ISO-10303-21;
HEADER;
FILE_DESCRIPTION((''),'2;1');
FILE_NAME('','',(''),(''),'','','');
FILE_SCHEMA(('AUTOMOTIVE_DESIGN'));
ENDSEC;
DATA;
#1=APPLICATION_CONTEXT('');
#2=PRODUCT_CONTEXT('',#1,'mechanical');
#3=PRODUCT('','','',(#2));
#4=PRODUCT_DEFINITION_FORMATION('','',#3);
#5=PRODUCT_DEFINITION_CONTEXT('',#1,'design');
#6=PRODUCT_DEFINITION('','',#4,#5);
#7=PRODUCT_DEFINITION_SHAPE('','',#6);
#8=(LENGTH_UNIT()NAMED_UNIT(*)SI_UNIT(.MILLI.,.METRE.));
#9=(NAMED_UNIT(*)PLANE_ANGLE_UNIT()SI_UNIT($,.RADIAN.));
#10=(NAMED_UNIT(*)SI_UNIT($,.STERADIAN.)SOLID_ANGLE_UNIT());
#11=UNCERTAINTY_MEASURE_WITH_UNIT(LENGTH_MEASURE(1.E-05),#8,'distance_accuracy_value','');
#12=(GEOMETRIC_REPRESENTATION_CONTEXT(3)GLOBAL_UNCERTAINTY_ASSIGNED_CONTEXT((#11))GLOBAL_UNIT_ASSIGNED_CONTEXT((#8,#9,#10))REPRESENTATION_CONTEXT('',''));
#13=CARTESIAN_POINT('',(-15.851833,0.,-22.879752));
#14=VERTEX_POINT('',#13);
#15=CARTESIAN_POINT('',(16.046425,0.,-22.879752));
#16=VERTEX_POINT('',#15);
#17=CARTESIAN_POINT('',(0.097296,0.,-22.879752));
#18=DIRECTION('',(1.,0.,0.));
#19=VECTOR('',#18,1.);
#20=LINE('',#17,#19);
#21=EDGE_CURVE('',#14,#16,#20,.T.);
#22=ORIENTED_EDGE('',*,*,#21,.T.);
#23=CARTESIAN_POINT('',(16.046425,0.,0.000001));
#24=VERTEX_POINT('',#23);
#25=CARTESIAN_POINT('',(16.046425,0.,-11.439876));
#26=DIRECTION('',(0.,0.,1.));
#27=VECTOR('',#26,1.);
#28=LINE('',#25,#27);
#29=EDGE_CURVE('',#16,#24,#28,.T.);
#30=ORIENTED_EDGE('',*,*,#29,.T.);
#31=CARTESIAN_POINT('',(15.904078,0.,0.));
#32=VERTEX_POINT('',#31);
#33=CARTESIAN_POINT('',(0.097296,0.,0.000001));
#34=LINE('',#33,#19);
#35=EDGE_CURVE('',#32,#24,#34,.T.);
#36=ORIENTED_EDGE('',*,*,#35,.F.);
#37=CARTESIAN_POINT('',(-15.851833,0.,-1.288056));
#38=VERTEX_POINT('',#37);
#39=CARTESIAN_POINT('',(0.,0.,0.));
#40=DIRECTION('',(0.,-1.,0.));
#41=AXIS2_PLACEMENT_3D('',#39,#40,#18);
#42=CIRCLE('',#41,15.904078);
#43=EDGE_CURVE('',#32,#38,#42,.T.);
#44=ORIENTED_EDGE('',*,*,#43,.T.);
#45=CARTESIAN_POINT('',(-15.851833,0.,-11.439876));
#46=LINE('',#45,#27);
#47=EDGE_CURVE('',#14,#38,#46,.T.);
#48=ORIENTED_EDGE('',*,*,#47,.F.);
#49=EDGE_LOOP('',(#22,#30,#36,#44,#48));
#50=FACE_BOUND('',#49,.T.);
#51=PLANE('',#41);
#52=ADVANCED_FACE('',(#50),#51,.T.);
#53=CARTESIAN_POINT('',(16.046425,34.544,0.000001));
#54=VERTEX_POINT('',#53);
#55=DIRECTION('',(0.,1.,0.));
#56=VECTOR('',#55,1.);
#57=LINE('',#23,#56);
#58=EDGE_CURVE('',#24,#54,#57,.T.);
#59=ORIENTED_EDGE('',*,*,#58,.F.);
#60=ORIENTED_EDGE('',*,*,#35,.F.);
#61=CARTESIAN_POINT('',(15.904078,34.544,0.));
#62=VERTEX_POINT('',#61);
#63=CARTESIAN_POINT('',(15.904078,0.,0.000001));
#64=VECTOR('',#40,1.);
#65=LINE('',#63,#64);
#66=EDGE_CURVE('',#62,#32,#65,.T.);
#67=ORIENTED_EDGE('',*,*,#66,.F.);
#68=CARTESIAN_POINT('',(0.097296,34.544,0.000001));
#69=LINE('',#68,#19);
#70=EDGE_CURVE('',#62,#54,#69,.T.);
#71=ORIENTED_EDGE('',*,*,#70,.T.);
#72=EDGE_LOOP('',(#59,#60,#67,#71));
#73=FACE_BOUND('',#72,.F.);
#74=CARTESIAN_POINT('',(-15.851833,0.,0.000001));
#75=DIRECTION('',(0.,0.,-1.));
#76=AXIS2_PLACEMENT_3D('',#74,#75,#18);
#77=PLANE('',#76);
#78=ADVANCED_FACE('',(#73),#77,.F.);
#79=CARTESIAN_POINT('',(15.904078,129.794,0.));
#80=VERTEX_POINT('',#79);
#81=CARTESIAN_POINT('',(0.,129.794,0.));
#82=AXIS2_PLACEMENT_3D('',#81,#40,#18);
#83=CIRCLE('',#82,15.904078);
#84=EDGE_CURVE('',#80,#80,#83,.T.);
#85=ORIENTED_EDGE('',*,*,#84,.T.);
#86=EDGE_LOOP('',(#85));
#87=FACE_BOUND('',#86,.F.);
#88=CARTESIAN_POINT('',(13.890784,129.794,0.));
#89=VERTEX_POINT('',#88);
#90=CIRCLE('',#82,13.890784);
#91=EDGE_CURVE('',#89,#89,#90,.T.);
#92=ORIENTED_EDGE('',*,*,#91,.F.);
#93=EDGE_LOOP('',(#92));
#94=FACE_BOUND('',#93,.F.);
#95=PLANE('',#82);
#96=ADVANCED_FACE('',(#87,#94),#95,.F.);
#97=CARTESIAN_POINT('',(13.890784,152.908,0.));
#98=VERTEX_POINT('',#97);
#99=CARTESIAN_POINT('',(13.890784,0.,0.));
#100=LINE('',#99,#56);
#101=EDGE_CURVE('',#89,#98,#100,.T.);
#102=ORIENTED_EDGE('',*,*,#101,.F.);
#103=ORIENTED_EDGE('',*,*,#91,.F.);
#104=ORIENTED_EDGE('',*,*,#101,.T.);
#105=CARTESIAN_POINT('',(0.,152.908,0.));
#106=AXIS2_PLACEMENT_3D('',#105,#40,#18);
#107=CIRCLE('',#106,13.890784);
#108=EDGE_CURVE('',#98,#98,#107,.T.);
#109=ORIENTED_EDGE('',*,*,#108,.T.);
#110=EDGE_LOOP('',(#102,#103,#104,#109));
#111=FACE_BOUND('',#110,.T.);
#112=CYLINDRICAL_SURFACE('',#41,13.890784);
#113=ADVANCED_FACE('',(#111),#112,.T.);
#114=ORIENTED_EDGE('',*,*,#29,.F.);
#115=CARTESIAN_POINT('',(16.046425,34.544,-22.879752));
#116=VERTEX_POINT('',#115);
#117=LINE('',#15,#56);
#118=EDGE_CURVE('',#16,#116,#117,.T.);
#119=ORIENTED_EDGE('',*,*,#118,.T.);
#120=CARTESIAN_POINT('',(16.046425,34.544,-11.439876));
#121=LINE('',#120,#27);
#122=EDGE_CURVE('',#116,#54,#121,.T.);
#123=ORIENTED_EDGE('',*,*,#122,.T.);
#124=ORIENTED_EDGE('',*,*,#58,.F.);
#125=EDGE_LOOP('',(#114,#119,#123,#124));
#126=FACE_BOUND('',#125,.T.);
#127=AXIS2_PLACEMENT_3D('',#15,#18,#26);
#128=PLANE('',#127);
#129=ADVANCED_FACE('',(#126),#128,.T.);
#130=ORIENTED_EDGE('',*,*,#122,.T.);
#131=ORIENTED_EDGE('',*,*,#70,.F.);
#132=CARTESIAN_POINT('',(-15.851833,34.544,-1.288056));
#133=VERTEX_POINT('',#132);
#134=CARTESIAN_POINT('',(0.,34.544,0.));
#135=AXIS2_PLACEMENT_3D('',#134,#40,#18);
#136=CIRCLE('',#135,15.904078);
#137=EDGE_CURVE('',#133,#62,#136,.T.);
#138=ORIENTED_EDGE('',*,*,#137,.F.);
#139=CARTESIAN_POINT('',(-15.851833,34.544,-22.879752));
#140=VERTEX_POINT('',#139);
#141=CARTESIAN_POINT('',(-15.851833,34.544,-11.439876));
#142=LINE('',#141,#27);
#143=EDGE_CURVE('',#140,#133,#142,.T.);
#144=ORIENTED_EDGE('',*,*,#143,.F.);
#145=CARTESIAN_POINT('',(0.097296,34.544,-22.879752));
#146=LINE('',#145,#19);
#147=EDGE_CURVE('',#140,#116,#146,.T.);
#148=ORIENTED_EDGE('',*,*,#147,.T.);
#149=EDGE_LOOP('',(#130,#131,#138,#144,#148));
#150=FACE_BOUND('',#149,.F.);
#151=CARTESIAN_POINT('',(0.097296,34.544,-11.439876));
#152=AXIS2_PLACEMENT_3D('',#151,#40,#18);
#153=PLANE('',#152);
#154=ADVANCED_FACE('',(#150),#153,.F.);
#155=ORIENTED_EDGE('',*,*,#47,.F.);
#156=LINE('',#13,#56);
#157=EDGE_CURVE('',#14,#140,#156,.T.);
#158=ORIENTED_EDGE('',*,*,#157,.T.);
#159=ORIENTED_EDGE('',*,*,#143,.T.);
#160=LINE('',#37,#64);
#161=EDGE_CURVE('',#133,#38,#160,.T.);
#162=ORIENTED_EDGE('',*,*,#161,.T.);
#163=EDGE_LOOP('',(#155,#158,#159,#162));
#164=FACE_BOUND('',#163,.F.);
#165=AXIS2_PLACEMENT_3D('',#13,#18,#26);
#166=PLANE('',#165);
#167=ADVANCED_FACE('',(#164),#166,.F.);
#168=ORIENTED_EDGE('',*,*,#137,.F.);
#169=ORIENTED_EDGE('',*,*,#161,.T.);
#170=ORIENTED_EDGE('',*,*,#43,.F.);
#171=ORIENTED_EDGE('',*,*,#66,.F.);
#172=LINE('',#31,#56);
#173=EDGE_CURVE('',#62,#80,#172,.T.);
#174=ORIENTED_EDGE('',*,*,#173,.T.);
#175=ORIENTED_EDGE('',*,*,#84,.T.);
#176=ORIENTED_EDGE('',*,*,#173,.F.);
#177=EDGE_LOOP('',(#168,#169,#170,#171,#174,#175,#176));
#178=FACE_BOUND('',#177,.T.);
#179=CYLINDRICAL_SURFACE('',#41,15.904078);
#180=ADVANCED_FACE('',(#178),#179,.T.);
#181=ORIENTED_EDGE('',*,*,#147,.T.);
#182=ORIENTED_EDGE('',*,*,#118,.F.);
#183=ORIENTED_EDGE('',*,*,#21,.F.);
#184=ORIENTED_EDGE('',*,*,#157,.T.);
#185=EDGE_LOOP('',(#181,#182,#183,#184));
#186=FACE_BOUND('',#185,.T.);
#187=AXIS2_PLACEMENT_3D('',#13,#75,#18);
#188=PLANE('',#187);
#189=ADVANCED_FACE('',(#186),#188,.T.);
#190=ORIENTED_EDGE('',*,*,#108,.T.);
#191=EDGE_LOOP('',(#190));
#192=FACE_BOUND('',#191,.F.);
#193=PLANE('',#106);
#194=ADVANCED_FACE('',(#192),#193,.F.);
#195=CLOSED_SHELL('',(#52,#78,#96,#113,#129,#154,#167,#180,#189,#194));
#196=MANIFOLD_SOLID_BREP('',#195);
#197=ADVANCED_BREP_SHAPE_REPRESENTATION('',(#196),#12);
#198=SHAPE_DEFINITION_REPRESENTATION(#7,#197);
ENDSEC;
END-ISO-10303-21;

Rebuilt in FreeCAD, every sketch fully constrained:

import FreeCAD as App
import Part
import Sketcher
Q = App.Units.Quantity

doc = App.newDocument("Part")
params = doc.addObject("Spreadsheet::Sheet", "Params")
for row, (alias, value) in enumerate([
    ("pad1_length", "5.11 in"),
    ("pad2_length", "1.36 in"),
    ("pad3_length", "6.02 in"),
], start=1):
    params.set(f"A{row}", alias)
    params.set(f"B{row}", "=" + value)
    params.setAlias(f"B{row}", alias)

body = doc.addObject("PartDesign::Body", "Body")

# Sketch on XZ plane
sketch1 = body.newObject("Sketcher::SketchObject", "Sketch")
sketch1.AttachmentSupport = (doc.getObject("XZ_Plane"), [""])
sketch1.MapMode = "FlatFace"
sketch1.addGeometry(Part.Circle(App.Vector(0, 0, 0), App.Vector(0, 0, 1), 15.904078), False)
sketch1.addConstraint(Sketcher.Constraint("Coincident", 0, 3, -1, 1))
sketch1.addConstraint(Sketcher.Constraint("Diameter", 0, Q("31.808156 mm")))
pad1 = body.newObject("PartDesign::Pad", "Pad")
pad1.Profile = sketch1
pad1.setExpression("Length", "Params.pad1_length")
pad1.Reversed = True

# Sketch on XZ plane
sketch2 = body.newObject("Sketcher::SketchObject", "Sketch001")
sketch2.AttachmentSupport = (doc.getObject("XZ_Plane"), [""])
sketch2.MapMode = "FlatFace"
sketch2.addGeometry(Part.LineSegment(App.Vector(-15.851833, 0, 0), App.Vector(-15.851833, -22.879752, 0)), False)
sketch2.addGeometry(Part.LineSegment(App.Vector(-15.851833, -22.879752, 0), App.Vector(16.046425, -22.879752, 0)), False)
sketch2.addGeometry(Part.LineSegment(App.Vector(16.046425, -22.879752, 0), App.Vector(16.046425, 0, 0)), False)
sketch2.addGeometry(Part.LineSegment(App.Vector(16.046425, 0, 0), App.Vector(-15.851833, 0, 0)), False)
sketch2.addConstraint(Sketcher.Constraint("Coincident", 0, 2, 1, 1))
sketch2.addConstraint(Sketcher.Constraint("Coincident", 1, 2, 2, 1))
sketch2.addConstraint(Sketcher.Constraint("Coincident", 2, 2, 3, 1))
sketch2.addConstraint(Sketcher.Constraint("Coincident", 3, 2, 0, 1))
sketch2.addConstraint(Sketcher.Constraint("Vertical", 0))
sketch2.addConstraint(Sketcher.Constraint("Horizontal", 1))
sketch2.addConstraint(Sketcher.Constraint("Vertical", 2))
sketch2.addConstraint(Sketcher.Constraint("Horizontal", 3))
sketch2.addConstraint(Sketcher.Constraint("PointOnObject", 2, 2, -1))
sketch2.addConstraint(Sketcher.Constraint("DistanceX", 1, 1, 1, 2, Q("31.898258 mm")))
sketch2.addConstraint(Sketcher.Constraint("DistanceY", 0, 2, 0, 1, Q("22.879753 mm")))
sketch2.addConstraint(Sketcher.Constraint("DistanceX", 0, 2, -1, 1, Q("15.851833 mm")))
pad2 = body.newObject("PartDesign::Pad", "Pad001")
pad2.Profile = sketch2
pad2.setExpression("Length", "Params.pad2_length")
pad2.Reversed = True

# Sketch on XZ plane
sketch3 = body.newObject("Sketcher::SketchObject", "Sketch002")
sketch3.AttachmentSupport = (doc.getObject("XZ_Plane"), [""])
sketch3.MapMode = "FlatFace"
sketch3.addGeometry(Part.Circle(App.Vector(0, 0, 0), App.Vector(0, 0, 1), 13.890784), False)
sketch3.addConstraint(Sketcher.Constraint("Coincident", 0, 3, -1, 1))
sketch3.addConstraint(Sketcher.Constraint("Diameter", 0, Q("27.781568 mm")))
pad3 = body.newObject("PartDesign::Pad", "Pad002")
pad3.Profile = sketch3
pad3.setExpression("Length", "Params.pad3_length")
pad3.Reversed = True

doc.recompute()
